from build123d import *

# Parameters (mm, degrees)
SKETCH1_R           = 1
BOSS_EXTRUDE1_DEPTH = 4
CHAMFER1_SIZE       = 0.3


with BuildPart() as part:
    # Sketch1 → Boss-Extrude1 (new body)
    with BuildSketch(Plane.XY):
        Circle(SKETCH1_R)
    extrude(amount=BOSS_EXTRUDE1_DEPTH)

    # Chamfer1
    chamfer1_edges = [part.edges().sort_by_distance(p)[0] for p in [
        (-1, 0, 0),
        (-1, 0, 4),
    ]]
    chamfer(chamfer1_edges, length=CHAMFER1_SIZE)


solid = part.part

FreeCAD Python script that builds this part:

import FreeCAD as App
import Part
import Sketcher

V = App.Vector
Q = App.Units.Quantity


def edges_at(feature, points):
    """Names of the edges that pass closest to the given points."""
    edges = feature.Shape.Edges
    near = lambda p: min(range(len(edges)), key=lambda i: edges[i].distToShape(Part.Vertex(*p))[0])
    return sorted({f"Edge{near(p) + 1}" for p in points})

doc = App.newDocument("Part")
params = doc.addObject("Spreadsheet::Sheet", "Params")
for row, (alias, value) in enumerate([
    ("sketch1_diameter", "2 mm"),
    ("pad1_length", "4 mm"),
    ("chamfer_size", "0.3 mm"),
], start=1):
    params.set(f"A{row}", alias)
    params.set(f"B{row}", "=" + value)
    params.setAlias(f"B{row}", alias)

body = doc.addObject("PartDesign::Body", "Body")

sketch1 = body.newObject("Sketcher::SketchObject", "Sketch")
sketch1.AttachmentSupport = (doc.getObject("XY_Plane"), [""])
sketch1.MapMode = "FlatFace"
sketch1.addGeometry(Part.Circle(V(0, 0, 0), V(0, 0, 1), 1), False)
sketch1.addConstraint(Sketcher.Constraint("Coincident", 0, 3, -1, 1))
sketch1.addConstraint(Sketcher.Constraint("Diameter", 0, Q("2 mm")))
sketch1.setExpression("Constraints[1]", "Params.sketch1_diameter")
pad1 = body.newObject("PartDesign::Pad", "Pad")
pad1.Profile = sketch1
pad1.setExpression("Length", "Params.pad1_length")
doc.recompute()

chamfer = body.newObject("PartDesign::Chamfer", "Chamfer")
chamfer.Base = (pad1, edges_at(pad1, [(-1, 0, 0), (-1, 0, 4)]))
chamfer.setExpression("Size", "Params.chamfer_size")

doc.recompute()
